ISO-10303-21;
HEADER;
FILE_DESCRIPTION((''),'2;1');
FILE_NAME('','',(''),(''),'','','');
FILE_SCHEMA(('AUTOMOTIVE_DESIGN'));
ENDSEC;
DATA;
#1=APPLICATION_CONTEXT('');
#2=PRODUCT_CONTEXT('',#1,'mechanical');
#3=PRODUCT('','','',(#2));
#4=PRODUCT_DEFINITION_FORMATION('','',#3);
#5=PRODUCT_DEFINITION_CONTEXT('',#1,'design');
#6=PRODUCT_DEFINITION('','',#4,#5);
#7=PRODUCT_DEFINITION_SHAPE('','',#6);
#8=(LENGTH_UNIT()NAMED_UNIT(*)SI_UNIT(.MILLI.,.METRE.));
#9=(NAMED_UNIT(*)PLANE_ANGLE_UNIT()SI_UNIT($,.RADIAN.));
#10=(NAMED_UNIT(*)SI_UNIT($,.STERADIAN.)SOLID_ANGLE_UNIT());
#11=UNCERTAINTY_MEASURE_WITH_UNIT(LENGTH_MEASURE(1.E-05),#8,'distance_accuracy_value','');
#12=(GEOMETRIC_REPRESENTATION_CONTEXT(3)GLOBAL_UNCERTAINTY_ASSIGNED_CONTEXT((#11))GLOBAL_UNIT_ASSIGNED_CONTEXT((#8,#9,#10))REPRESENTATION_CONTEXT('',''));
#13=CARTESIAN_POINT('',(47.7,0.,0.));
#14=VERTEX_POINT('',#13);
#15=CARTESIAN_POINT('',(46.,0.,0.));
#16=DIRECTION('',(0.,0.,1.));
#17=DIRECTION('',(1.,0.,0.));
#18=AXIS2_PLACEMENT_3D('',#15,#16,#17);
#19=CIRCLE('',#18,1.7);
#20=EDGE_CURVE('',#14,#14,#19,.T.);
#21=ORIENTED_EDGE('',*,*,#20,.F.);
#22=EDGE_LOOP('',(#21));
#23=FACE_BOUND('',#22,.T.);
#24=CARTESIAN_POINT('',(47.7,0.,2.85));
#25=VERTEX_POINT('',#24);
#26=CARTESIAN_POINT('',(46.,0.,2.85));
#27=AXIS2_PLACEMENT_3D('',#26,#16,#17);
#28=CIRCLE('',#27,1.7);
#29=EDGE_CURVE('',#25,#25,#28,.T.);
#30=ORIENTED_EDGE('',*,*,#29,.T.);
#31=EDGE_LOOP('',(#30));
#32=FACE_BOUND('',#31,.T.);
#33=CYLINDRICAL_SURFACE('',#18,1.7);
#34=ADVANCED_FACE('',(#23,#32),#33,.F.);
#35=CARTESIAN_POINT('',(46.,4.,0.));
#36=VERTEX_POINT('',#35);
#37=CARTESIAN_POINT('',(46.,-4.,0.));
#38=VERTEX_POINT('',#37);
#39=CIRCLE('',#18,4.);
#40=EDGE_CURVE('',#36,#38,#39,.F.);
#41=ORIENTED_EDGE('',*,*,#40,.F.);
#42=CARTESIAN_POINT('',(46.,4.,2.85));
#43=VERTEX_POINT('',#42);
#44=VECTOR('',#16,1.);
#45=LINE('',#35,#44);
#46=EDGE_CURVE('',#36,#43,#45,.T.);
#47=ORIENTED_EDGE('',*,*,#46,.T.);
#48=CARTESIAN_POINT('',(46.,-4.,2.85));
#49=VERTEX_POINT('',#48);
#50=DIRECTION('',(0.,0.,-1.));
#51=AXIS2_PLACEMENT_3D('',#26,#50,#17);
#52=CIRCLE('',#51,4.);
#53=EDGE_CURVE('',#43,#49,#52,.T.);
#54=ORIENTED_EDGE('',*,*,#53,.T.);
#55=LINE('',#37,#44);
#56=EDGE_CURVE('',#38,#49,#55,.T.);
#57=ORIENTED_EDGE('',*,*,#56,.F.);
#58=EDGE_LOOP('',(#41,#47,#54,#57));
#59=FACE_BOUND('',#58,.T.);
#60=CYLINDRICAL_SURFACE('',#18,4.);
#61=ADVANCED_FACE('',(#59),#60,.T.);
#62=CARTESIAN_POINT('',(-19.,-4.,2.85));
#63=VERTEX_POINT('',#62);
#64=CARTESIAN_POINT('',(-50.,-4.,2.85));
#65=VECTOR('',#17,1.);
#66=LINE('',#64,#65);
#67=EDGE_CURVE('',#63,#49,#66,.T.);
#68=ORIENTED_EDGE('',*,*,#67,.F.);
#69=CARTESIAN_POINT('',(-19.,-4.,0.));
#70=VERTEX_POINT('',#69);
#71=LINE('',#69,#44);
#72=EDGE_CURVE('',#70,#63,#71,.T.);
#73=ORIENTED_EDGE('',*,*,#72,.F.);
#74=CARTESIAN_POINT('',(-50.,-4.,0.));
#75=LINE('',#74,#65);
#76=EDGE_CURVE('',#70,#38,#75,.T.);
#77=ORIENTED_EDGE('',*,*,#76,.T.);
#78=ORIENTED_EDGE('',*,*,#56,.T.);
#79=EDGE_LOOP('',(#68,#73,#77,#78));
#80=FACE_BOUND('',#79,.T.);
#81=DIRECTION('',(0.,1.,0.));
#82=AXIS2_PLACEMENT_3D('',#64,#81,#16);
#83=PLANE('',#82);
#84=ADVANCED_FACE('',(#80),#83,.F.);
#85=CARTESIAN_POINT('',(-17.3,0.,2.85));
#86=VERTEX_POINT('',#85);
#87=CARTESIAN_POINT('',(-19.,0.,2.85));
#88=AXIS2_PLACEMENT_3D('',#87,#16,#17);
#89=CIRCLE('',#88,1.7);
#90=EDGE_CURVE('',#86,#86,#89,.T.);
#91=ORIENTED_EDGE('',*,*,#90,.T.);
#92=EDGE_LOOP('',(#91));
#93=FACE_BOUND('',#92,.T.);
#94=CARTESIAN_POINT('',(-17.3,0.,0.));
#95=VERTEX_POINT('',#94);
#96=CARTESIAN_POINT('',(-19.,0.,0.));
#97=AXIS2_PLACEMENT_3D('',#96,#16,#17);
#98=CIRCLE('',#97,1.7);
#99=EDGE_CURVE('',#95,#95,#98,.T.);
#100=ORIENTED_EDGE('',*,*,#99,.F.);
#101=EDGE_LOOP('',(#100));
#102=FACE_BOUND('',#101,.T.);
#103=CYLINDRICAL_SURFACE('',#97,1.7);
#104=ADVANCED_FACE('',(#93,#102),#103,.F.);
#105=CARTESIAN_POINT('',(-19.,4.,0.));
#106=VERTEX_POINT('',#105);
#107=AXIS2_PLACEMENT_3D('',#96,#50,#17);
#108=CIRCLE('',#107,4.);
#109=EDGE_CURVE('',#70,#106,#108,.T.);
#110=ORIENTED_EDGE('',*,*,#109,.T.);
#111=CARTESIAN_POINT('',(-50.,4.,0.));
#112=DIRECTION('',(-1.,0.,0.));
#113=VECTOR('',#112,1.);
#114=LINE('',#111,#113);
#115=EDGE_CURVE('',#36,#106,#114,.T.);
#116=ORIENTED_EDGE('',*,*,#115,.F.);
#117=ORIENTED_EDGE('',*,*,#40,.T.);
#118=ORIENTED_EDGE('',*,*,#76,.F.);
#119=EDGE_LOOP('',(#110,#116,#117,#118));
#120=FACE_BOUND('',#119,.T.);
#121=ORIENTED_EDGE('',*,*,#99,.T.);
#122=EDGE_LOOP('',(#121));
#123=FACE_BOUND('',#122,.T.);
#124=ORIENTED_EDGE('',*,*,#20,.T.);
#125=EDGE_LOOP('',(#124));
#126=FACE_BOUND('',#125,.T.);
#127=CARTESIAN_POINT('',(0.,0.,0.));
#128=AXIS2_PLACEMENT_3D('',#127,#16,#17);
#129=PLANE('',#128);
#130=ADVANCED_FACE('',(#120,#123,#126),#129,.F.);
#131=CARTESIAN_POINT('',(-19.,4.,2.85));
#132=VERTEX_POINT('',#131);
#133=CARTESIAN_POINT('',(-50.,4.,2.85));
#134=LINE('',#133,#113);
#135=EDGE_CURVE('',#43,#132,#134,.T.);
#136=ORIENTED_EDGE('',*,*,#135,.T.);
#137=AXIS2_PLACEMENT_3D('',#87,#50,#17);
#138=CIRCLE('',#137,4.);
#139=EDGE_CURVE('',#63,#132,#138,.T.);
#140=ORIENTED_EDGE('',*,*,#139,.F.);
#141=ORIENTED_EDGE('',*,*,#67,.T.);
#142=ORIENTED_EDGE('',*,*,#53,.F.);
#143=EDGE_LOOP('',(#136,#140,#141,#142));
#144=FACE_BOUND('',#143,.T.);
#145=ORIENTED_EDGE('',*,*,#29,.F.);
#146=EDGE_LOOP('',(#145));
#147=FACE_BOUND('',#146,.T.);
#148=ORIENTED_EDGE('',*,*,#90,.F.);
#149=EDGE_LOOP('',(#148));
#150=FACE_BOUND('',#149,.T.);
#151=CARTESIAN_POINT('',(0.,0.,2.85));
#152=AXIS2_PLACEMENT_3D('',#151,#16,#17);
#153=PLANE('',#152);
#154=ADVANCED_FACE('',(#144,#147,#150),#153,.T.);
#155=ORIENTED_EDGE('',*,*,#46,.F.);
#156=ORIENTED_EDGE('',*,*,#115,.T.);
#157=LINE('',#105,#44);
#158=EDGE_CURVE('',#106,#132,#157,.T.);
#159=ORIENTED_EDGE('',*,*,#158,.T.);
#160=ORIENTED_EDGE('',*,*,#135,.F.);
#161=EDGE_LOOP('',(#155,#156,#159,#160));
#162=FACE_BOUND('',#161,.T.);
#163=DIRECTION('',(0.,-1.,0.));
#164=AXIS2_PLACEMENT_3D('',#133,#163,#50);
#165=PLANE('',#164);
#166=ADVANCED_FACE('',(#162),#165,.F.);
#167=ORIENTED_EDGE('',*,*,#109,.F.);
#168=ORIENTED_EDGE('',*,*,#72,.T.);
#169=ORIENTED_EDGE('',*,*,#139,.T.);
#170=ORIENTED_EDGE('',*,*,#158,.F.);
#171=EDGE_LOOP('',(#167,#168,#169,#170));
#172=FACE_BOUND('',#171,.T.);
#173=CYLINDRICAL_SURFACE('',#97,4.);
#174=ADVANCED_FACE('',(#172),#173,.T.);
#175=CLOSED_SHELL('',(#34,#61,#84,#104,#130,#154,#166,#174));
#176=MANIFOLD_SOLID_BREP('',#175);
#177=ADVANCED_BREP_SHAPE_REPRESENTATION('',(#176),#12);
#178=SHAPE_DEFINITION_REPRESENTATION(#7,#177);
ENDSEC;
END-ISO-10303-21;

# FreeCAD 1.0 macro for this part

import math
import FreeCAD as App
import Part
import Sketcher

V = App.Vector

doc = App.newDocument("Part")
body = doc.addObject("PartDesign::Body", "Body")

# Sketch on XY plane
sketch1 = body.newObject("Sketcher::SketchObject", "Sketch")
sketch1.AttachmentSupport = (doc.getObject("XY_Plane"), [""])
sketch1.MapMode = "FlatFace"
sketch1.addGeometry([
    Part.LineSegment(V(-50, 4, 0), V(-50, -4, 0)),
    Part.LineSegment(V(-50, -4, 0), V(50, -4, 0)),
    Part.LineSegment(V(50, -4, 0), V(50, 4, 0)),
    Part.LineSegment(V(50, 4, 0), V(-50, 4, 0)),
], False)
sketch1.addConstraint([
    Sketcher.Constraint("Coincident", 0, 2, 1, 1),
    Sketcher.Constraint("Coincident", 1, 2, 2, 1),
    Sketcher.Constraint("Coincident", 2, 2, 3, 1),
    Sketcher.Constraint("Coincident", 3, 2, 0, 1),
    Sketcher.Constraint("Vertical", 0),
    Sketcher.Constraint("Horizontal", 1),
    Sketcher.Constraint("Vertical", 2),
    Sketcher.Constraint("Horizontal", 3),
    Sketcher.Constraint("Symmetric", 0, 2, 2, 2, -1, 1),
    Sketcher.Constraint("DistanceX", 1, 1, 1, 2, 100.0),
    Sketcher.Constraint("DistanceY", 0, 2, 0, 1, 8.0),
])
pad1 = body.newObject("PartDesign::Pad", "Pad")
pad1.Profile = sketch1
pad1.Length = 2.85

# Sketch on XY plane
sketch2 = body.newObject("Sketcher::SketchObject", "Sketch001")
sketch2.AttachmentSupport = (doc.getObject("XY_Plane"), [""])
sketch2.MapMode = "FlatFace"
sketch2.AttachmentOffset = App.Placement(V(0, 0, 2.85), App.Rotation())
sketch2.addGeometry([
    Part.LineSegment(V(46, -4, 0), V(51, -4, 0)),
    Part.LineSegment(V(51, -4, 0), V(51, 4, 0)),
    Part.LineSegment(V(51, 4, 0), V(46, 4, 0)),
    Part.ArcOfCircle(Part.Circle(V(46, 0, 0), V(0, 0, 1), 4), math.radians(-90), math.radians(90)),
], False)
sketch2.addConstraint([
    Sketcher.Constraint("Coincident", 0, 2, 1, 1),
    Sketcher.Constraint("Coincident", 1, 2, 2, 1),
    Sketcher.Constraint("Tangent", 2, 2, 3, 2),
    Sketcher.Constraint("Tangent", 3, 1, 0, 1),
    Sketcher.Constraint("Horizontal", 0),
    Sketcher.Constraint("Vertical", 1),
    Sketcher.Constraint("Horizontal", 2),
    Sketcher.Constraint("PointOnObject", 3, 3, -1),
    Sketcher.Constraint("Radius", 3, 4.0),
    Sketcher.Constraint("DistanceX", 0, 1, 0, 2, 5.0),
    Sketcher.Constraint("DistanceX", -1, 1, 3, 3, 46.0),
])
pocket1 = body.newObject("PartDesign::Pocket", "Pocket")
pocket1.Profile = sketch2
pocket1.Type = "ThroughAll"

# Sketch on XY plane
sketch3 = body.newObject("Sketcher::SketchObject", "Sketch002")
sketch3.AttachmentSupport = (doc.getObject("XY_Plane"), [""])
sketch3.MapMode = "FlatFace"
sketch3.AttachmentOffset = App.Placement(V(0, 0, 2.85), App.Rotation())
sketch3.addGeometry(Part.Circle(V(46, 0, 0), V(0, 0, 1), 1.7), False)
sketch3.addConstraint([
    Sketcher.Constraint("PointOnObject", 0, 3, -1),
    Sketcher.Constraint("Diameter", 0, 3.4),
    Sketcher.Constraint("DistanceX", -1, 1, 0, 3, 46.0),
])
pocket2 = body.newObject("PartDesign::Pocket", "Pocket001")
pocket2.Profile = sketch3
pocket2.Type = "ThroughAll"
doc.recompute()

mirrored = body.newObject("PartDesign::Mirrored", "Mirrored")
mirrored.Originals = [pocket1, pocket2]
mirrored.MirrorPlane = (doc.getObject("YZ_Plane"), [""])
body.Tip = mirrored

# Sketch on XY plane
sketch4 = body.newObject("Sketcher::SketchObject", "Sketch003")
sketch4.AttachmentSupport = (doc.getObject("XY_Plane"), [""])
sketch4.MapMode = "FlatFace"
sketch4.AttachmentOffset = App.Placement(V(0, 0, 2.85), App.Rotation())
sketch4.addGeometry(Part.Circle(V(-19, 0, 0), V(0, 0, 1), 1.7), False)
sketch4.addConstraint([
    Sketcher.Constraint("PointOnObject", 0, 3, -1),
    Sketcher.Constraint("Diameter", 0, 3.4),
    Sketcher.Constraint("DistanceX", 0, 3, -1, 1, 19.0),
])
pocket3 = body.newObject("PartDesign::Pocket", "Pocket002")
pocket3.Profile = sketch4
pocket3.Type = "ThroughAll"

# Sketch on XY plane
sketch5 = body.newObject("Sketcher::SketchObject", "Sketch004")
sketch5.AttachmentSupport = (doc.getObject("XY_Plane"), [""])
sketch5.MapMode = "FlatFace"
sketch5.AttachmentOffset = App.Placement(V(0, 0, 2.85), App.Rotation())
sketch5.addGeometry([
    Part.LineSegment(V(-19, 4, 0), V(-50, 4, 0)),
    Part.LineSegment(V(-50, 4, 0), V(-50, -4, 0)),
    Part.LineSegment(V(-50, -4, 0), V(-19, -4, 0)),
    Part.ArcOfCircle(Part.Circle(V(-19, 0, 0), V(0, 0, 1), 4), math.radians(90), math.radians(270)),
], False)
sketch5.addConstraint([
    Sketcher.Constraint("Coincident", 0, 2, 1, 1),
    Sketcher.Constraint("Coincident", 1, 2, 2, 1),
    Sketcher.Constraint("Tangent", 2, 2, 3, 2),
    Sketcher.Constraint("Tangent", 3, 1, 0, 1),
    Sketcher.Constraint("Horizontal", 0),
    Sketcher.Constraint("Vertical", 1),
    Sketcher.Constraint("Horizontal", 2),
    Sketcher.Constraint("PointOnObject", 3, 3, -1),
    Sketcher.Constraint("Radius", 3, 4.0),
    Sketcher.Constraint("DistanceX", 0, 2, 0, 1, 31.0),
    Sketcher.Constraint("DistanceX", 3, 3, -1, 1, 19.0),
])
pocket4 = body.newObject("PartDesign::Pocket", "Pocket003")
pocket4.Profile = sketch5
pocket4.Type = "ThroughAll"

doc.recompute()
